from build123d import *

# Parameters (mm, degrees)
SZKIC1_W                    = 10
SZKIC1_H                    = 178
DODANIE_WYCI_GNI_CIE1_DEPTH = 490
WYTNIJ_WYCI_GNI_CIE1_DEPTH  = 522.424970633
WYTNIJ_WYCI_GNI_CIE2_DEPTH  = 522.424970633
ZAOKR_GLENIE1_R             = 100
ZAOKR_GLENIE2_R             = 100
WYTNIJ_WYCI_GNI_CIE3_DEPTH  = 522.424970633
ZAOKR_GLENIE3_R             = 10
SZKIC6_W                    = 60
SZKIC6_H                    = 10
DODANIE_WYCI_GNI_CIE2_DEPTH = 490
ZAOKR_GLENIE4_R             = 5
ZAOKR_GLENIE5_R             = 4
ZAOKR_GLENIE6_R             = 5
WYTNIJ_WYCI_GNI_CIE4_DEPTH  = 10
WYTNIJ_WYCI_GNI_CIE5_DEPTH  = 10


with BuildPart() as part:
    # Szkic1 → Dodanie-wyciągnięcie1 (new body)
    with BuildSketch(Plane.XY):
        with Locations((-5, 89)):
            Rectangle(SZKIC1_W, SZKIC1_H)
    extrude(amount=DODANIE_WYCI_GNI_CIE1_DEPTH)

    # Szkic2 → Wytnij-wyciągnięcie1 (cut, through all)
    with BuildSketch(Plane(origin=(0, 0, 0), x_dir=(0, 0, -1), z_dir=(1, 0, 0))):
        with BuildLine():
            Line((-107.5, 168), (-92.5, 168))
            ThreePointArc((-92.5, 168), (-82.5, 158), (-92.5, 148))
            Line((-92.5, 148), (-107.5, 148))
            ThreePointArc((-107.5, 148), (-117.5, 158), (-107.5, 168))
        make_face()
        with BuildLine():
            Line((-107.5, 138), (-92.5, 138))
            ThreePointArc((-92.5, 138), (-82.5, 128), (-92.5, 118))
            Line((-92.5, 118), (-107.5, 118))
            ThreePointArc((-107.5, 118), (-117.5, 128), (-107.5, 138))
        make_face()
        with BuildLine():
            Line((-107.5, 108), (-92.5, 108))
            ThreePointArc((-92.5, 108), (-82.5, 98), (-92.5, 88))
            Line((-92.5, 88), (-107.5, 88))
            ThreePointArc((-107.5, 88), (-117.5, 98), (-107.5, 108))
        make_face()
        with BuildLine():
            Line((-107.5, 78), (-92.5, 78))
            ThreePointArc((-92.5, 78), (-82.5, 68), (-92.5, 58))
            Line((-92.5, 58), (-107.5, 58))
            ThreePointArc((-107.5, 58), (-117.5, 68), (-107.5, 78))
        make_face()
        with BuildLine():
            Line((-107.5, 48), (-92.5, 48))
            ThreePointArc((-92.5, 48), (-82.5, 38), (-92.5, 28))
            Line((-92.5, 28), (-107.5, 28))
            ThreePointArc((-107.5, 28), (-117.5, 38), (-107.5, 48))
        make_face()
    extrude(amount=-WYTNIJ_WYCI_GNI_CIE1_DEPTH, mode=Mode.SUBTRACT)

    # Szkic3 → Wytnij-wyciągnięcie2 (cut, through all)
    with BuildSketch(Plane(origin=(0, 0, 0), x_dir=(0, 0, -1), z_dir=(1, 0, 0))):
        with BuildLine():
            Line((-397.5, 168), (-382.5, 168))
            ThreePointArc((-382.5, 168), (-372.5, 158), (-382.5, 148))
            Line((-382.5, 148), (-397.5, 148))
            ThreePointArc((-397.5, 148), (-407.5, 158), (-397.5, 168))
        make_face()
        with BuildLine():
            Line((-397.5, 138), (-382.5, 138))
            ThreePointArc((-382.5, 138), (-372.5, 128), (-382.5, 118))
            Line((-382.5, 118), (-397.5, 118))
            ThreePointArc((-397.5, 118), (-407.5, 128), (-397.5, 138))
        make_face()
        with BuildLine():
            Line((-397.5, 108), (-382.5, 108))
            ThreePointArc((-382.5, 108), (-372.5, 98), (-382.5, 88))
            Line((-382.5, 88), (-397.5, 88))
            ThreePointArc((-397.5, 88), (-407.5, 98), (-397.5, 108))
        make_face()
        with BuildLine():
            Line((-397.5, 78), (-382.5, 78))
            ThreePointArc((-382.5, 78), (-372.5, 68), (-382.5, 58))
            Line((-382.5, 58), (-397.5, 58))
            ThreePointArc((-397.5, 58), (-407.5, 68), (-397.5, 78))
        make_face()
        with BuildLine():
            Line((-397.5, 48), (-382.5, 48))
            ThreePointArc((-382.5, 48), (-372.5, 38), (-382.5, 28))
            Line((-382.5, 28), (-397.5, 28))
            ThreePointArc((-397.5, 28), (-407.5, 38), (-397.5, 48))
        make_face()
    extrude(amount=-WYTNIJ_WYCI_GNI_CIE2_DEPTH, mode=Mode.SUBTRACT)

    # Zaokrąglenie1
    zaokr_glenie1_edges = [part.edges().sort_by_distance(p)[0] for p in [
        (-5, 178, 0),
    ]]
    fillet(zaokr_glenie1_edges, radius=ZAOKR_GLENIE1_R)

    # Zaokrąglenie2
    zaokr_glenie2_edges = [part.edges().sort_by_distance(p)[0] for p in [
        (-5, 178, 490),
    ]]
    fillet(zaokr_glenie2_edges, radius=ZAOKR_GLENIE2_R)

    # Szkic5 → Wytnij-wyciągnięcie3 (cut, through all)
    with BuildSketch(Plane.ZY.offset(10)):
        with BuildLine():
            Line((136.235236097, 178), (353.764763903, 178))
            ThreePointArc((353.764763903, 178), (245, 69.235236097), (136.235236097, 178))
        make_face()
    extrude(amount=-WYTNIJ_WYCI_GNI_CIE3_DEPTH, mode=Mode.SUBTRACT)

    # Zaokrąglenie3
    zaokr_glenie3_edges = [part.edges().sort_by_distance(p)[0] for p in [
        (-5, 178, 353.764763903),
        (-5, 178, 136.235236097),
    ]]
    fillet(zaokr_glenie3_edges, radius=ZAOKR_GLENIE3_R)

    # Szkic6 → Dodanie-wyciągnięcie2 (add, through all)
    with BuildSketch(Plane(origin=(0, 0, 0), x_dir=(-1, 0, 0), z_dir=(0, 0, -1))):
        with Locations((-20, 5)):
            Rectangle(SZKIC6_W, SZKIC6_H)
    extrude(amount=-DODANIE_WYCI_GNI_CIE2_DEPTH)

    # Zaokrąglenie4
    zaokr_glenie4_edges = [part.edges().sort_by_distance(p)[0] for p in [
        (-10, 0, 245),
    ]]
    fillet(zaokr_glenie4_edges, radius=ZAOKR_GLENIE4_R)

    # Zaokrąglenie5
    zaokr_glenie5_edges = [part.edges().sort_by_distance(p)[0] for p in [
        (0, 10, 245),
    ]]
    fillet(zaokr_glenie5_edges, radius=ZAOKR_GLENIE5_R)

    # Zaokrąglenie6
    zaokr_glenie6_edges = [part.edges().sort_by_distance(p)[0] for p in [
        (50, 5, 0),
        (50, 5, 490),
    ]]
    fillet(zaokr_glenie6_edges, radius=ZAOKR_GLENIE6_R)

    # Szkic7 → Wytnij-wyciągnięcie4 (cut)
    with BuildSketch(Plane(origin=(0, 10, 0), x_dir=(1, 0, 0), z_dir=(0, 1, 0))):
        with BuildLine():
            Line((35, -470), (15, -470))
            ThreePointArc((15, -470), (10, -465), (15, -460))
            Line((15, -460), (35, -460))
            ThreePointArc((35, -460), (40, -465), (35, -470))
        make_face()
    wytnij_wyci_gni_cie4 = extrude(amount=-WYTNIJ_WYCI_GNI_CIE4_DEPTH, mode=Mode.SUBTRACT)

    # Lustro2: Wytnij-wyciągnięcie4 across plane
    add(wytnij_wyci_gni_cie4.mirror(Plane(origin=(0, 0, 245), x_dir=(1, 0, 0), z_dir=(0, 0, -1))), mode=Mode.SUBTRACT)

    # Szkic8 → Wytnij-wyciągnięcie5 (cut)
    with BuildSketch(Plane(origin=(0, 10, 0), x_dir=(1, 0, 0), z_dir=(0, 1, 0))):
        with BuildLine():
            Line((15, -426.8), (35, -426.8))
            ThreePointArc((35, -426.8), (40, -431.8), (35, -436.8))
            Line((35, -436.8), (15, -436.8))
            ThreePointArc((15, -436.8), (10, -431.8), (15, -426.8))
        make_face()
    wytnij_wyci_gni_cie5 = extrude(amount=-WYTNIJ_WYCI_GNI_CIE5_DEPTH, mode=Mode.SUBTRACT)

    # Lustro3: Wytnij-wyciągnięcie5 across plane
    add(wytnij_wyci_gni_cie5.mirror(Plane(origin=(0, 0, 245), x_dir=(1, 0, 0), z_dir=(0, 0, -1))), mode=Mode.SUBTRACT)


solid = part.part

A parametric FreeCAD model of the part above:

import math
import FreeCAD as App
import Part
import Sketcher

V = App.Vector


def edges_at(feature, points):
    """Names of the edges that pass closest to the given points."""
    edges = feature.Shape.Edges
    near = lambda p: min(range(len(edges)), key=lambda i: edges[i].distToShape(Part.Vertex(*p))[0])
    return sorted({f"Edge{near(p) + 1}" for p in points})


def add_polygon(sketch, points):
    """Adds a closed chain of lines whose ends are joined by coincident constraints."""
    first, n = sketch.GeometryCount, len(points)
    for a, b in zip(points, points[1:] + points[:1]):
        sketch.addGeometry(Part.LineSegment(App.Vector(*a, 0), App.Vector(*b, 0)), False)
    for i in range(n):
        sketch.addConstraint(Sketcher.Constraint("Coincident", first + i, 2, first + (i + 1) % n, 1))

doc = App.newDocument("Part")
body = doc.addObject("PartDesign::Body", "Body")

# Sketch on XY plane
sketch1 = body.newObject("Sketcher::SketchObject", "Sketch")
sketch1.AttachmentSupport = (doc.getObject("XY_Plane"), [""])
sketch1.MapMode = "FlatFace"
add_polygon(sketch1, [(-10, 178), (-10, 0), (0, 0), (0, 178)])  # lines 0-3
sketch1.addConstraint([
    Sketcher.Constraint("Vertical", 0),
    Sketcher.Constraint("Horizontal", 1),
    Sketcher.Constraint("Vertical", 2),
    Sketcher.Constraint("Horizontal", 3),
    Sketcher.Constraint("Coincident", 1, 2, -1, 1),
    Sketcher.Constraint("DistanceX", 1, 1, 1, 2, 10.0),
    Sketcher.Constraint("DistanceY", 0, 2, 0, 1, 178.0),
])
pad1 = body.newObject("PartDesign::Pad", "Pad")
pad1.Profile = sketch1
pad1.Length = 490

# Sketch on YZ plane
sketch2 = body.newObject("Sketcher::SketchObject", "Sketch001")
sketch2.AttachmentSupport = (doc.getObject("YZ_Plane"), [""])
sketch2.MapMode = "FlatFace"
sketch2.addGeometry([
    Part.LineSegment(V(168, 92.5, 0), V(168, 107.5, 0)),  # 0
    Part.ArcOfCircle(Part.Circle(V(158, 107.5, 0), V(0, 0, 1), 10), math.radians(0), math.radians(180)),  # 1
    Part.LineSegment(V(148, 107.5, 0), V(148, 92.5, 0)),  # 2
    Part.ArcOfCircle(Part.Circle(V(158, 92.5, 0), V(0, 0, 1), 10), math.radians(180), math.radians(360)),  # 3
    Part.LineSegment(V(138, 92.5, 0), V(138, 107.5, 0)),  # 4
    Part.ArcOfCircle(Part.Circle(V(128, 107.5, 0), V(0, 0, 1), 10), math.radians(0), math.radians(180)),  # 5
    Part.LineSegment(V(118, 107.5, 0), V(118, 92.5, 0)),  # 6
    Part.ArcOfCircle(Part.Circle(V(128, 92.5, 0), V(0, 0, 1), 10), math.radians(180), math.radians(360)),  # 7
    Part.LineSegment(V(108, 92.5, 0), V(108, 107.5, 0)),  # 8
    Part.ArcOfCircle(Part.Circle(V(98, 107.5, 0), V(0, 0, 1), 10), math.radians(0), math.radians(180)),  # 9
    Part.LineSegment(V(88, 107.5, 0), V(88, 92.5, 0)),  # 10
    Part.ArcOfCircle(Part.Circle(V(98, 92.5, 0), V(0, 0, 1), 10), math.radians(180), math.radians(360)),  # 11
    Part.LineSegment(V(78, 92.5, 0), V(78, 107.5, 0)),  # 12
    Part.ArcOfCircle(Part.Circle(V(68, 107.5, 0), V(0, 0, 1), 10), math.radians(0), math.radians(180)),  # 13
    Part.LineSegment(V(58, 107.5, 0), V(58, 92.5, 0)),  # 14
    Part.ArcOfCircle(Part.Circle(V(68, 92.5, 0), V(0, 0, 1), 10), math.radians(180), math.radians(360)),  # 15
    Part.LineSegment(V(48, 92.5, 0), V(48, 107.5, 0)),  # 16
    Part.ArcOfCircle(Part.Circle(V(38, 107.5, 0), V(0, 0, 1), 10), math.radians(0), math.radians(180)),  # 17
    Part.LineSegment(V(28, 107.5, 0), V(28, 92.5, 0)),  # 18
    Part.ArcOfCircle(Part.Circle(V(38, 92.5, 0), V(0, 0, 1), 10), math.radians(180), math.radians(360)),  # 19
], False)
sketch2.addConstraint([
    Sketcher.Constraint("Tangent", 0, 2, 1, 1),
    Sketcher.Constraint("Tangent", 1, 2, 2, 1),
    Sketcher.Constraint("Tangent", 2, 2, 3, 1),
    Sketcher.Constraint("Tangent", 3, 2, 0, 1),
    Sketcher.Constraint("Tangent", 4, 2, 5, 1),
    Sketcher.Constraint("Tangent", 5, 2, 6, 1),
    Sketcher.Constraint("Tangent", 6, 2, 7, 1),
    Sketcher.Constraint("Tangent", 7, 2, 4, 1),
    Sketcher.Constraint("Tangent", 8, 2, 9, 1),
    Sketcher.Constraint("Tangent", 9, 2, 10, 1),
    Sketcher.Constraint("Tangent", 10, 2, 11, 1),
    Sketcher.Constraint("Tangent", 11, 2, 8, 1),
    Sketcher.Constraint("Tangent", 12, 2, 13, 1),
    Sketcher.Constraint("Tangent", 13, 2, 14, 1),
    Sketcher.Constraint("Tangent", 14, 2, 15, 1),
    Sketcher.Constraint("Tangent", 15, 2, 12, 1),
    Sketcher.Constraint("Tangent", 16, 2, 17, 1),
    Sketcher.Constraint("Tangent", 17, 2, 18, 1),
    Sketcher.Constraint("Tangent", 18, 2, 19, 1),
    Sketcher.Constraint("Tangent", 19, 2, 16, 1),
    Sketcher.Constraint("Vertical", 0),
    Sketcher.Constraint("Vertical", 2),
    Sketcher.Constraint("Vertical", 4),
    Sketcher.Constraint("Vertical", 6),
    Sketcher.Constraint("Vertical", 8),
    Sketcher.Constraint("Vertical", 10),
    Sketcher.Constraint("Vertical", 12),
    Sketcher.Constraint("Vertical", 14),
    Sketcher.Constraint("Vertical", 16),
    Sketcher.Constraint("Vertical", 18),
    Sketcher.Constraint("Equal", 3, 5),
    Sketcher.Constraint("Equal", 7, 9),
    Sketcher.Constraint("Equal", 11, 13),
    Sketcher.Constraint("Equal", 15, 17),
    Sketcher.Constraint("Horizontal", 1, 3, 5, 3),
    Sketcher.Constraint("Horizontal", 3, 3, 7, 3),
    Sketcher.Constraint("Horizontal", 5, 3, 9, 3),
    Sketcher.Constraint("Horizontal", 7, 3, 11, 3),
    Sketcher.Constraint("Horizontal", 9, 3, 13, 3),
    Sketcher.Constraint("Horizontal", 11, 3, 15, 3),
    Sketcher.Constraint("Horizontal", 13, 3, 17, 3),
    Sketcher.Constraint("Horizontal", 15, 3, 19, 3),
    Sketcher.Constraint("Radius", 1, 10.0),
    Sketcher.Constraint("DistanceY", 0, 1, 0, 2, 15.0),
    Sketcher.Constraint("DistanceX", -1, 1, 1, 3, 158.0),
    Sketcher.Constraint("DistanceX", -1, 1, 5, 3, 128.0),
    Sketcher.Constraint("DistanceX", -1, 1, 9, 3, 98.0),
    Sketcher.Constraint("DistanceX", -1, 1, 13, 3, 68.0),
    Sketcher.Constraint("DistanceX", -1, 1, 17, 3, 38.0),
    Sketcher.Constraint("DistanceY", -1, 1, 1, 3, 107.5),
])
pocket1 = body.newObject("PartDesign::Pocket", "Pocket")
pocket1.Profile = sketch2
pocket1.Type = "ThroughAll"

# Sketch on YZ plane
sketch3 = body.newObject("Sketcher::SketchObject", "Sketch002")
sketch3.AttachmentSupport = (doc.getObject("YZ_Plane"), [""])
sketch3.MapMode = "FlatFace"
sketch3.addGeometry([
    Part.LineSegment(V(168, 382.5, 0), V(168, 397.5, 0)),  # 0
    Part.ArcOfCircle(Part.Circle(V(158, 397.5, 0), V(0, 0, 1), 10), math.radians(0), math.radians(180)),  # 1
    Part.LineSegment(V(148, 397.5, 0), V(148, 382.5, 0)),  # 2
    Part.ArcOfCircle(Part.Circle(V(158, 382.5, 0), V(0, 0, 1), 10), math.radians(180), math.radians(360)),  # 3
    Part.LineSegment(V(138, 382.5, 0), V(138, 397.5, 0)),  # 4
    Part.ArcOfCircle(Part.Circle(V(128, 397.5, 0), V(0, 0, 1), 10), math.radians(0), math.radians(180)),  # 5
    Part.LineSegment(V(118, 397.5, 0), V(118, 382.5, 0)),  # 6
    Part.ArcOfCircle(Part.Circle(V(128, 382.5, 0), V(0, 0, 1), 10), math.radians(180), math.radians(360)),  # 7
    Part.LineSegment(V(108, 382.5, 0), V(108, 397.5, 0)),  # 8
    Part.ArcOfCircle(Part.Circle(V(98, 397.5, 0), V(0, 0, 1), 10), math.radians(0), math.radians(180)),  # 9
    Part.LineSegment(V(88, 397.5, 0), V(88, 382.5, 0)),  # 10
    Part.ArcOfCircle(Part.Circle(V(98, 382.5, 0), V(0, 0, 1), 10), math.radians(180), math.radians(360)),  # 11
    Part.LineSegment(V(78, 382.5, 0), V(78, 397.5, 0)),  # 12
    Part.ArcOfCircle(Part.Circle(V(68, 397.5, 0), V(0, 0, 1), 10), math.radians(0), math.radians(180)),  # 13
    Part.LineSegment(V(58, 397.5, 0), V(58, 382.5, 0)),  # 14
    Part.ArcOfCircle(Part.Circle(V(68, 382.5, 0), V(0, 0, 1), 10), math.radians(180), math.radians(360)),  # 15
    Part.LineSegment(V(48, 382.5, 0), V(48, 397.5, 0)),  # 16
    Part.ArcOfCircle(Part.Circle(V(38, 397.5, 0), V(0, 0, 1), 10), math.radians(0), math.radians(180)),  # 17
    Part.LineSegment(V(28, 397.5, 0), V(28, 382.5, 0)),  # 18
    Part.ArcOfCircle(Part.Circle(V(38, 382.5, 0), V(0, 0, 1), 10), math.radians(180), math.radians(360)),  # 19
], False)
sketch3.addConstraint([
    Sketcher.Constraint("Tangent", 0, 2, 1, 1),
    Sketcher.Constraint("Tangent", 1, 2, 2, 1),
    Sketcher.Constraint("Tangent", 2, 2, 3, 1),
    Sketcher.Constraint("Tangent", 3, 2, 0, 1),
    Sketcher.Constraint("Tangent", 4, 2, 5, 1),
    Sketcher.Constraint("Tangent", 5, 2, 6, 1),
    Sketcher.Constraint("Tangent", 6, 2, 7, 1),
    Sketcher.Constraint("Tangent", 7, 2, 4, 1),
    Sketcher.Constraint("Tangent", 8, 2, 9, 1),
    Sketcher.Constraint("Tangent", 9, 2, 10, 1),
    Sketcher.Constraint("Tangent", 10, 2, 11, 1),
    Sketcher.Constraint("Tangent", 11, 2, 8, 1),
    Sketcher.Constraint("Tangent", 12, 2, 13, 1),
    Sketcher.Constraint("Tangent", 13, 2, 14, 1),
    Sketcher.Constraint("Tangent", 14, 2, 15, 1),
    Sketcher.Constraint("Tangent", 15, 2, 12, 1),
    Sketcher.Constraint("Tangent", 16, 2, 17, 1),
    Sketcher.Constraint("Tangent", 17, 2, 18, 1),
    Sketcher.Constraint("Tangent", 18, 2, 19, 1),
    Sketcher.Constraint("Tangent", 19, 2, 16, 1),
    Sketcher.Constraint("Vertical", 0),
    Sketcher.Constraint("Vertical", 2),
    Sketcher.Constraint("Vertical", 4),
    Sketcher.Constraint("Vertical", 6),
    Sketcher.Constraint("Vertical", 8),
    Sketcher.Constraint("Vertical", 10),
    Sketcher.Constraint("Vertical", 12),
    Sketcher.Constraint("Vertical", 14),
    Sketcher.Constraint("Vertical", 16),
    Sketcher.Constraint("Vertical", 18),
    Sketcher.Constraint("Equal", 3, 5),
    Sketcher.Constraint("Equal", 7, 9),
    Sketcher.Constraint("Equal", 11, 13),
    Sketcher.Constraint("Equal", 15, 17),
    Sketcher.Constraint("Horizontal", 1, 3, 5, 3),
    Sketcher.Constraint("Horizontal", 3, 3, 7, 3),
    Sketcher.Constraint("Horizontal", 5, 3, 9, 3),
    Sketcher.Constraint("Horizontal", 7, 3, 11, 3),
    Sketcher.Constraint("Horizontal", 9, 3, 13, 3),
    Sketcher.Constraint("Horizontal", 11, 3, 15, 3),
    Sketcher.Constraint("Horizontal", 13, 3, 17, 3),
    Sketcher.Constraint("Horizontal", 15, 3, 19, 3),
    Sketcher.Constraint("Radius", 1, 10.0),
    Sketcher.Constraint("DistanceY", 0, 1, 0, 2, 15.0),
    Sketcher.Constraint("DistanceX", -1, 1, 1, 3, 158.0),
    Sketcher.Constraint("DistanceX", -1, 1, 5, 3, 128.0),
    Sketcher.Constraint("DistanceX", -1, 1, 9, 3, 98.0),
    Sketcher.Constraint("DistanceX", -1, 1, 13, 3, 68.0),
    Sketcher.Constraint("DistanceX", -1, 1, 17, 3, 38.0),
    Sketcher.Constraint("DistanceY", -1, 1, 1, 3, 397.5),
])
pocket2 = body.newObject("PartDesign::Pocket", "Pocket001")
pocket2.Profile = sketch3
pocket2.Type = "ThroughAll"
doc.recompute()

fillet = body.newObject("PartDesign::Fillet", "Fillet")
fillet.Base = (pocket2, edges_at(pocket2, [(-5, 178, 0)]))
fillet.Radius = 100
doc.recompute()

fillet2 = body.newObject("PartDesign::Fillet", "Fillet001")
fillet2.Base = (fillet, edges_at(fillet, [(-5, 178, 490)]))
fillet2.Radius = 100

# Sketch on YZ plane
sketch4 = body.newObject("Sketcher::SketchObject", "Sketch003")
sketch4.AttachmentSupport = (doc.getObject("YZ_Plane"), [""])
sketch4.MapMode = "FlatFace"
sketch4.AttachmentOffset = App.Placement(V(0, 0, -10), App.Rotation())
sketch4.addGeometry([
    Part.LineSegment(V(178, 353.764764, 0), V(178, 136.235236, 0)),
    Part.ArcOfCircle(Part.Circle(V(178, 245, 0), V(0, 0, 1), 108.764764), math.radians(90), math.radians(270)),
], False)
sketch4.addConstraint([
    Sketcher.Constraint("Coincident", 0, 1, 1, 1),
    Sketcher.Constraint("Coincident", 1, 2, 0, 2),
    Sketcher.Constraint("Vertical", 0),
    Sketcher.Constraint("Vertical", 1, 3, 0, 1),
    Sketcher.Constraint("DistanceX", -1, 1, 1, 3, 178.0),
    Sketcher.Constraint("DistanceY", -1, 1, 1, 3, 245.0),
    Sketcher.Constraint("Radius", 1, 108.764764),
])
pocket3 = body.newObject("PartDesign::Pocket", "Pocket002")
pocket3.Profile = sketch4
pocket3.Type = "ThroughAll"
pocket3.Reversed = True
doc.recompute()

fillet3 = body.newObject("PartDesign::Fillet", "Fillet002")
fillet3.Base = (pocket3, edges_at(pocket3, [(-5, 178, 353.765), (-5, 178, 136.235)]))
fillet3.Radius = 10

# Sketch on XY plane
sketch5 = body.newObject("Sketcher::SketchObject", "Sketch004")
sketch5.AttachmentSupport = (doc.getObject("XY_Plane"), [""])
sketch5.MapMode = "FlatFace"
add_polygon(sketch5, [(50, 10), (50, 0), (-10, 0), (-10, 10)])  # lines 0-3
sketch5.addConstraint([
    Sketcher.Constraint("Vertical", 0),
    Sketcher.Constraint("Horizontal", 1),
    Sketcher.Constraint("Vertical", 2),
    Sketcher.Constraint("Horizontal", 3),
    Sketcher.Constraint("PointOnObject", 0, 2, -1),
    Sketcher.Constraint("DistanceX", 1, 2, 1, 1, 60.0),
    Sketcher.Constraint("DistanceY", 0, 2, 0, 1, 10.0),
    Sketcher.Constraint("DistanceX", -1, 1, 0, 2, 50.0),
])
pad2 = body.newObject("PartDesign::Pad", "Pad001")
pad2.Profile = sketch5
pad2.Length = 490
doc.recompute()

fillet4 = body.newObject("PartDesign::Fillet", "Fillet003")
fillet4.Base = (pad2, edges_at(pad2, [(-10, 0, 245)]))
fillet4.Radius = 5
doc.recompute()

fillet5 = body.newObject("PartDesign::Fillet", "Fillet004")
fillet5.Base = (fillet4, edges_at(fillet4, [(0, 10, 245)]))
fillet5.Radius = 4
doc.recompute()

fillet6 = body.newObject("PartDesign::Fillet", "Fillet005")
fillet6.Base = (fillet5, edges_at(fillet5, [(50, 5, 0), (50, 5, 490)]))
fillet6.Radius = 5

# Sketch on XZ plane
sketch6 = body.newObject("Sketcher::SketchObject", "Sketch005")
sketch6.AttachmentSupport = (doc.getObject("XZ_Plane"), [""])
sketch6.MapMode = "FlatFace"
sketch6.AttachmentOffset = App.Placement(V(0, 0, -10), App.Rotation())
sketch6.addGeometry([
    Part.LineSegment(V(15, 470, 0), V(35, 470, 0)),
    Part.ArcOfCircle(Part.Circle(V(35, 465, 0), V(0, 0, 1), 5), math.radians(-90), math.radians(90)),
    Part.LineSegment(V(35, 460, 0), V(15, 460, 0)),
    Part.ArcOfCircle(Part.Circle(V(15, 465, 0), V(0, 0, 1), 5), math.radians(90), math.radians(270)),
], False)
sketch6.addConstraint([
    Sketcher.Constraint("Tangent", 0, 2, 1, 2),
    Sketcher.Constraint("Tangent", 1, 1, 2, 1),
    Sketcher.Constraint("Tangent", 2, 2, 3, 2),
    Sketcher.Constraint("Tangent", 3, 1, 0, 1),
    Sketcher.Constraint("Horizontal", 0),
    Sketcher.Constraint("Horizontal", 2),
    Sketcher.Constraint("Radius", 1, 5.0),
    Sketcher.Constraint("DistanceX", 0, 1, 0, 2, 20.0),
    Sketcher.Constraint("DistanceX", -1, 1, 1, 3, 35.0),
    Sketcher.Constraint("DistanceY", -1, 1, 1, 3, 465.0),
])
pocket4 = body.newObject("PartDesign::Pocket", "Pocket003")
pocket4.Profile = sketch6
pocket4.Length = 10
pocket4.Reversed = True
doc.recompute()

datumplane = body.newObject("PartDesign::Plane", "DatumPlane")
datumplane.AttachmentSupport = (doc.getObject("XY_Plane"), [""])
datumplane.MapMode = "FlatFace"
datumplane.AttachmentOffset = App.Placement(V(0, 0, 245), App.Rotation())
mirrored = body.newObject("PartDesign::Mirrored", "Mirrored")
mirrored.Originals = [pocket4]
mirrored.MirrorPlane = (datumplane, [""])
body.Tip = mirrored

# Sketch on XZ plane
sketch7 = body.newObject("Sketcher::SketchObject", "Sketch006")
sketch7.AttachmentSupport = (doc.getObject("XZ_Plane"), [""])
sketch7.MapMode = "FlatFace"
sketch7.AttachmentOffset = App.Placement(V(0, 0, -10), App.Rotation())
sketch7.addGeometry([
    Part.LineSegment(V(35, 426.8, 0), V(15, 426.8, 0)),
    Part.ArcOfCircle(Part.Circle(V(15, 431.8, 0), V(0, 0, 1), 5), math.radians(90), math.radians(270)),
    Part.LineSegment(V(15, 436.8, 0), V(35, 436.8, 0)),
    Part.ArcOfCircle(Part.Circle(V(35, 431.8, 0), V(0, 0, 1), 5), math.radians(-90), math.radians(90)),
], False)
sketch7.addConstraint([
    Sketcher.Constraint("Tangent", 0, 2, 1, 2),
    Sketcher.Constraint("Tangent", 1, 1, 2, 1),
    Sketcher.Constraint("Tangent", 2, 2, 3, 2),
    Sketcher.Constraint("Tangent", 3, 1, 0, 1),
    Sketcher.Constraint("Horizontal", 0),
    Sketcher.Constraint("Horizontal", 2),
    Sketcher.Constraint("Radius", 1, 5.0),
    Sketcher.Constraint("DistanceX", 0, 2, 0, 1, 20.0),
    Sketcher.Constraint("DistanceX", -1, 1, 1, 3, 15.0),
    Sketcher.Constraint("DistanceY", -1, 1, 1, 3, 431.8),
])
pocket5 = body.newObject("PartDesign::Pocket", "Pocket004")
pocket5.Profile = sketch7
pocket5.Length = 10
pocket5.Reversed = True
doc.recompute()

datumplane2 = body.newObject("PartDesign::Plane", "DatumPlane001")
datumplane2.AttachmentSupport = (doc.getObject("XY_Plane"), [""])
datumplane2.MapMode = "FlatFace"
datumplane2.AttachmentOffset = App.Placement(V(0, 0, 245), App.Rotation())
mirrored2 = body.newObject("PartDesign::Mirrored", "Mirrored001")
mirrored2.Originals = [pocket5]
mirrored2.MirrorPlane = (datumplane2, [""])
body.Tip = mirrored2

doc.recompute()
